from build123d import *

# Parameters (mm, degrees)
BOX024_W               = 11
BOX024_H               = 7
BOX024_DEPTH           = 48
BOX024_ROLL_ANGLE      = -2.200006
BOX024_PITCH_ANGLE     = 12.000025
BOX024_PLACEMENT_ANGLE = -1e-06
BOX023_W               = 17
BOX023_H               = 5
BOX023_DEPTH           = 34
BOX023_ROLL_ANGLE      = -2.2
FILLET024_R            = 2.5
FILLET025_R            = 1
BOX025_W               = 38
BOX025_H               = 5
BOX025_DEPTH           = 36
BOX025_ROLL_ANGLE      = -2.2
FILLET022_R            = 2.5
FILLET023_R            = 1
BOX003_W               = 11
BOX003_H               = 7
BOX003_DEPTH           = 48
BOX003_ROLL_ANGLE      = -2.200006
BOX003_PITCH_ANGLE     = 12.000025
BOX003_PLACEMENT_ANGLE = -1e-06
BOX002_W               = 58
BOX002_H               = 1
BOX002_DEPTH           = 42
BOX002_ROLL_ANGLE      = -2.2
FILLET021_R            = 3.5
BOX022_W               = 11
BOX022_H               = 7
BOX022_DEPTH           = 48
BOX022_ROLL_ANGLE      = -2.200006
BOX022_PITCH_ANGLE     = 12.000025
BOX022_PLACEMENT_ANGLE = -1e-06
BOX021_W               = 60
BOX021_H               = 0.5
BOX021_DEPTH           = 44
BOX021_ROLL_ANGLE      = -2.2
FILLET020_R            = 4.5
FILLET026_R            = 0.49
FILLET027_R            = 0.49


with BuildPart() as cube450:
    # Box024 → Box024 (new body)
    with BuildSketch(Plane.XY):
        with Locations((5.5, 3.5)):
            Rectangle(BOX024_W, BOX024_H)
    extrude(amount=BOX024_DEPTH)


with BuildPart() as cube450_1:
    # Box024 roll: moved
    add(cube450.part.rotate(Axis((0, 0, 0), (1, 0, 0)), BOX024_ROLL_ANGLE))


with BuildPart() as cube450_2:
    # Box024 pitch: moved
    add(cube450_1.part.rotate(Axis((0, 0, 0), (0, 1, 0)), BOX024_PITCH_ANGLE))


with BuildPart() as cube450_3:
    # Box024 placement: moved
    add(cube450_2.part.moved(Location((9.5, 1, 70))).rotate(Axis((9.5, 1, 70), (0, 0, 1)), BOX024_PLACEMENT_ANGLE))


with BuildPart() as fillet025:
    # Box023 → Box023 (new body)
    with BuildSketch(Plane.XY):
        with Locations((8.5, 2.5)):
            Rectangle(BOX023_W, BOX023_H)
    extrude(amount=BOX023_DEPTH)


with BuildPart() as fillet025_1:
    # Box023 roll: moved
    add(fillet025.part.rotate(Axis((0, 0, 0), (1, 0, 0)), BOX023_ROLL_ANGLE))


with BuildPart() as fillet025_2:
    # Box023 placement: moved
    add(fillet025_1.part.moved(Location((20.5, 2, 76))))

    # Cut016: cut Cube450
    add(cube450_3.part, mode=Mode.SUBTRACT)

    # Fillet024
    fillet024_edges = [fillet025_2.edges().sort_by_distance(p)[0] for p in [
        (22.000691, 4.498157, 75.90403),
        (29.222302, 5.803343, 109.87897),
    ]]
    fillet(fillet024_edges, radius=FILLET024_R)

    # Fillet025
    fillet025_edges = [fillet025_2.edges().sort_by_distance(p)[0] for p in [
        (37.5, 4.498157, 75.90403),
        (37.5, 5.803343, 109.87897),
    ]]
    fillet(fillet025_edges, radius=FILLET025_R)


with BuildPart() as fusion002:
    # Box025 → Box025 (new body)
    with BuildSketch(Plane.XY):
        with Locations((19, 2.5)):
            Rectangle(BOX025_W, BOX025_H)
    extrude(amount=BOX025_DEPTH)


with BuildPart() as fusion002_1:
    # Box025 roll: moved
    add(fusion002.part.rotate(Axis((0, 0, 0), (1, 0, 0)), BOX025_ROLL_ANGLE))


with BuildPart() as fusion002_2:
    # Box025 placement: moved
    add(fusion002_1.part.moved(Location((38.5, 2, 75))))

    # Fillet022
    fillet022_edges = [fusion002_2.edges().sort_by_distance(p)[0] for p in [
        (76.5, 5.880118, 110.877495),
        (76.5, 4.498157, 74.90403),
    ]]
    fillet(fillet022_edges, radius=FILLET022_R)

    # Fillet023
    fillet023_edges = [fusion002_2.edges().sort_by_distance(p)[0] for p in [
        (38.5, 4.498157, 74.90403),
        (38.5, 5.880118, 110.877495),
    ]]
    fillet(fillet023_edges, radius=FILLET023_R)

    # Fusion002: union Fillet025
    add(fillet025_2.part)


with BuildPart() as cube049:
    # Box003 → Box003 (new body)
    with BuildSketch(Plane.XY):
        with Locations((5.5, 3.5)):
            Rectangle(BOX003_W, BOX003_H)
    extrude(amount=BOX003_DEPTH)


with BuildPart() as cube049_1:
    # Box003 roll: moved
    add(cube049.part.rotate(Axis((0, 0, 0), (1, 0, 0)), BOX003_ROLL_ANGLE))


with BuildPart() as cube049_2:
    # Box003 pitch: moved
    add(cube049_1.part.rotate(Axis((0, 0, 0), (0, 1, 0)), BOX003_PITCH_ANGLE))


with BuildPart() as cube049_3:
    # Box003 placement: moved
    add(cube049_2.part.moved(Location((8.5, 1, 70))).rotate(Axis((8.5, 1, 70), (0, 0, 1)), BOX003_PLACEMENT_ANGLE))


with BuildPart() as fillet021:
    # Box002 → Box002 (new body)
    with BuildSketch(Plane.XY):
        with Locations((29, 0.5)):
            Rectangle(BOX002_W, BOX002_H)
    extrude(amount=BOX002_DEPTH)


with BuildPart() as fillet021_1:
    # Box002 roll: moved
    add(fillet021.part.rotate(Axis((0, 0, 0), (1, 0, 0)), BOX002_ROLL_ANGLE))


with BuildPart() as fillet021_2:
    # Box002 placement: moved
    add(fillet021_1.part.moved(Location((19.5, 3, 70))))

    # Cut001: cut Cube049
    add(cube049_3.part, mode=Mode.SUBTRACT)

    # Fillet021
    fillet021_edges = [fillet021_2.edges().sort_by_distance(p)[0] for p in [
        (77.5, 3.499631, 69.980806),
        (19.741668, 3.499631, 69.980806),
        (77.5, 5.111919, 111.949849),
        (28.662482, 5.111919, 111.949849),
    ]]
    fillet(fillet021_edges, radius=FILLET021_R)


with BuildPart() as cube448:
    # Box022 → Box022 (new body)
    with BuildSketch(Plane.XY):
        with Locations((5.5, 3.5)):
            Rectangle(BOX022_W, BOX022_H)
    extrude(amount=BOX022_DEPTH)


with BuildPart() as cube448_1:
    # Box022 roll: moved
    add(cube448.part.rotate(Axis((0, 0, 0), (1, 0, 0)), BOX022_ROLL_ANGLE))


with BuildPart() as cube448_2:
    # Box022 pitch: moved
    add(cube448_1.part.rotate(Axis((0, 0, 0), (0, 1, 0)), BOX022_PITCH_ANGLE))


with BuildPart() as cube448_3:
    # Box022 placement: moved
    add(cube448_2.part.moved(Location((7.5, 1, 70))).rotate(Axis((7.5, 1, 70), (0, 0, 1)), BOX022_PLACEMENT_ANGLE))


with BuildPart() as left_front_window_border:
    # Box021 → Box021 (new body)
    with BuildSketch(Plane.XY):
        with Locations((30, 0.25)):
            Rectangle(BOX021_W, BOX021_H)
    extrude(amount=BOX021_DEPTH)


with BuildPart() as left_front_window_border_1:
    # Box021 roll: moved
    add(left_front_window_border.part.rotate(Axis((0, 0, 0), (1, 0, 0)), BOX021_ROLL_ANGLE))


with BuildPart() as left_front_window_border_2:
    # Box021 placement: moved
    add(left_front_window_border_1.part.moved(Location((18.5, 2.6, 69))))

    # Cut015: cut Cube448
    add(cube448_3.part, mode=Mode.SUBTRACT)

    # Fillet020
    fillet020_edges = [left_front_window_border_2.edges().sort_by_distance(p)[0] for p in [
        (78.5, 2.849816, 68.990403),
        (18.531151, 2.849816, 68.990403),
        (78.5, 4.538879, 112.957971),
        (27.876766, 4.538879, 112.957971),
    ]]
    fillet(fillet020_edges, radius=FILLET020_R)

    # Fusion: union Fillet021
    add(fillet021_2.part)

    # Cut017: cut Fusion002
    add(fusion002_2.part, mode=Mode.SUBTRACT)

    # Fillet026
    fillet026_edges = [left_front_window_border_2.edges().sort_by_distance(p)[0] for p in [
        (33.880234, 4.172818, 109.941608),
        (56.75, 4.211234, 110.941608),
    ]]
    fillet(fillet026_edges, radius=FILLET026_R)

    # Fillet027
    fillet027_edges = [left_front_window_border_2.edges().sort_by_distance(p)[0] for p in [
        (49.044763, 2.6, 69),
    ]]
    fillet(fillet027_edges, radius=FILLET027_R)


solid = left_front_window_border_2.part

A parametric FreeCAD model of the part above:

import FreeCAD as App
import Part
import Sketcher
Q = App.Units.Quantity


def edges_at(feature, points):
    """Names of the edges that pass closest to the given points."""
    edges = feature.Shape.Edges
    near = lambda p: min(range(len(edges)), key=lambda i: edges[i].distToShape(Part.Vertex(*p))[0])
    return sorted({f"Edge{near(p) + 1}" for p in points})

doc = App.newDocument("Part")
params = doc.addObject("Spreadsheet::Sheet", "Params")
for row, (alias, value) in enumerate([
    ("sketch1_width", "11 mm"),
    ("sketch1_height", "7 mm"),
    ("pad1_length", "48 mm"),
    ("sketch2_width", "17 mm"),
    ("sketch2_height", "5 mm"),
    ("pad2_length", "34 mm"),
    ("fillet_radius", "2.5 mm"),
    ("fillet2_radius", "1 mm"),
    ("sketch3_width", "38 mm"),
    ("sketch3_height", "5 mm"),
    ("pad3_length", "36 mm"),
    ("fillet3_radius", "2.5 mm"),
    ("fillet4_radius", "1 mm"),
    ("sketch4_width", "11 mm"),
    ("sketch4_height", "7 mm"),
    ("pad4_length", "48 mm"),
    ("sketch5_width", "58 mm"),
    ("sketch5_height", "1 mm"),
    ("pad5_length", "42 mm"),
    ("fillet5_radius", "3.5 mm"),
    ("sketch6_width", "11 mm"),
    ("sketch6_height", "7 mm"),
    ("pad6_length", "48 mm"),
    ("sketch7_width", "60 mm"),
    ("sketch7_height", "0.5 mm"),
    ("pad7_length", "44 mm"),
    ("fillet6_radius", "4.5 mm"),
    ("fillet7_radius", "0.49 mm"),
    ("fillet8_radius", "0.49 mm"),
], start=1):
    params.set(f"A{row}", alias)
    params.set(f"B{row}", "=" + value)
    params.setAlias(f"B{row}", alias)

body = doc.addObject("PartDesign::Body", "Body")

# Sketch on XY plane
sketch1 = body.newObject("Sketcher::SketchObject", "Sketch")
sketch1.AttachmentSupport = (doc.getObject("XY_Plane"), [""])
sketch1.MapMode = "FlatFace"
sketch1.addGeometry([
    Part.LineSegment(App.Vector(0, 7, 0), App.Vector(0, 0, 0)),
    Part.LineSegment(App.Vector(0, 0, 0), App.Vector(11, 0, 0)),
    Part.LineSegment(App.Vector(11, 0, 0), App.Vector(11, 7, 0)),
    Part.LineSegment(App.Vector(11, 7, 0), App.Vector(0, 7, 0)),
], False)
sketch1.addConstraint([
    Sketcher.Constraint("Coincident", 0, 2, 1, 1),
    Sketcher.Constraint("Coincident", 1, 2, 2, 1),
    Sketcher.Constraint("Coincident", 2, 2, 3, 1),
    Sketcher.Constraint("Coincident", 3, 2, 0, 1),
    Sketcher.Constraint("Vertical", 0),
    Sketcher.Constraint("Horizontal", 1),
    Sketcher.Constraint("Vertical", 2),
    Sketcher.Constraint("Horizontal", 3),
    Sketcher.Constraint("Coincident", 0, 2, -1, 1),
    Sketcher.Constraint("DistanceX", 1, 1, 1, 2, Q("11 mm")),
    Sketcher.Constraint("DistanceY", 0, 2, 0, 1, Q("7 mm")),
])
sketch1.setExpression("Constraints[9]", "Params.sketch1_width")
sketch1.setExpression("Constraints[10]", "Params.sketch1_height")
pad1 = body.newObject("PartDesign::Pad", "Pad")
pad1.Profile = sketch1
pad1.setExpression("Length", "Params.pad1_length")
body2 = doc.addObject("PartDesign::Body", "Body001")
doc.recompute()

body.Placement = App.Placement(App.Vector(0, 0, 0), App.Rotation(App.Vector(1, 0, 0), 357.799994))
boolean = body2.newObject("PartDesign::Boolean", "Boolean")
boolean.Type = "Fuse"
boolean.addObjects([body])
body3 = doc.addObject("PartDesign::Body", "Body002")
doc.recompute()

body2.Placement = App.Placement(App.Vector(0, 0, 0), App.Rotation(App.Vector(0, 1, 0), 12.000025))
boolean2 = body3.newObject("PartDesign::Boolean", "Boolean001")
boolean2.Type = "Fuse"
boolean2.addObjects([body2])
body4 = doc.addObject("PartDesign::Body", "Body003")
doc.recompute()

body3.Placement = App.Placement(App.Vector(9.5, 1, 70), App.Rotation(App.Vector(0, 0, 1), 0))
boolean3 = body4.newObject("PartDesign::Boolean", "Boolean002")
boolean3.Type = "Fuse"
boolean3.addObjects([body3])
body5 = doc.addObject("PartDesign::Body", "Body004")

# Sketch on XY plane
sketch2 = body5.newObject("Sketcher::SketchObject", "Sketch001")
sketch2.AttachmentSupport = (doc.getObject("XY_Plane004"), [""])
sketch2.MapMode = "FlatFace"
sketch2.addGeometry([
    Part.LineSegment(App.Vector(0, 5, 0), App.Vector(0, 0, 0)),
    Part.LineSegment(App.Vector(0, 0, 0), App.Vector(17, 0, 0)),
    Part.LineSegment(App.Vector(17, 0, 0), App.Vector(17, 5, 0)),
    Part.LineSegment(App.Vector(17, 5, 0), App.Vector(0, 5, 0)),
], False)
sketch2.addConstraint([
    Sketcher.Constraint("Coincident", 0, 2, 1, 1),
    Sketcher.Constraint("Coincident", 1, 2, 2, 1),
    Sketcher.Constraint("Coincident", 2, 2, 3, 1),
    Sketcher.Constraint("Coincident", 3, 2, 0, 1),
    Sketcher.Constraint("Vertical", 0),
    Sketcher.Constraint("Horizontal", 1),
    Sketcher.Constraint("Vertical", 2),
    Sketcher.Constraint("Horizontal", 3),
    Sketcher.Constraint("Coincident", 0, 2, -1, 1),
    Sketcher.Constraint("DistanceX", 1, 1, 1, 2, Q("17 mm")),
    Sketcher.Constraint("DistanceY", 0, 2, 0, 1, Q("5 mm")),
])
sketch2.setExpression("Constraints[9]", "Params.sketch2_width")
sketch2.setExpression("Constraints[10]", "Params.sketch2_height")
pad2 = body5.newObject("PartDesign::Pad", "Pad001")
pad2.Profile = sketch2
pad2.setExpression("Length", "Params.pad2_length")
body6 = doc.addObject("PartDesign::Body", "Body005")
doc.recompute()

body5.Placement = App.Placement(App.Vector(0, 0, 0), App.Rotation(App.Vector(1, 0, 0), 357.8))
boolean4 = body6.newObject("PartDesign::Boolean", "Boolean003")
boolean4.Type = "Fuse"
boolean4.addObjects([body5])
body7 = doc.addObject("PartDesign::Body", "Body006")
doc.recompute()

body6.Placement = App.Placement(App.Vector(20.5, 2, 76), App.Rotation(App.Vector(0, 0, 1), 0))
boolean5 = body7.newObject("PartDesign::Boolean", "Boolean004")
boolean5.Type = "Fuse"
boolean5.addObjects([body6])
doc.recompute()

boolean6 = body7.newObject("PartDesign::Boolean", "Boolean005")
boolean6.Type = "Cut"
boolean6.addObjects([body4])
doc.recompute()

fillet = body7.newObject("PartDesign::Fillet", "Fillet")
fillet.Base = (boolean6, edges_at(boolean6, [(22.001, 4.498, 75.904), (29.222, 5.803, 109.879)]))
fillet.setExpression("Radius", "Params.fillet_radius")
doc.recompute()

fillet2 = body7.newObject("PartDesign::Fillet", "Fillet001")
fillet2.Base = (fillet, edges_at(fillet, [(37.5, 4.498, 75.904), (37.5, 5.803, 109.879)]))
fillet2.setExpression("Radius", "Params.fillet2_radius")
body8 = doc.addObject("PartDesign::Body", "Body007")

# Sketch on XY plane
sketch3 = body8.newObject("Sketcher::SketchObject", "Sketch002")
sketch3.AttachmentSupport = (doc.getObject("XY_Plane007"), [""])
sketch3.MapMode = "FlatFace"
sketch3.addGeometry([
    Part.LineSegment(App.Vector(0, 5, 0), App.Vector(0, 0, 0)),
    Part.LineSegment(App.Vector(0, 0, 0), App.Vector(38, 0, 0)),
    Part.LineSegment(App.Vector(38, 0, 0), App.Vector(38, 5, 0)),
    Part.LineSegment(App.Vector(38, 5, 0), App.Vector(0, 5, 0)),
], False)
sketch3.addConstraint([
    Sketcher.Constraint("Coincident", 0, 2, 1, 1),
    Sketcher.Constraint("Coincident", 1, 2, 2, 1),
    Sketcher.Constraint("Coincident", 2, 2, 3, 1),
    Sketcher.Constraint("Coincident", 3, 2, 0, 1),
    Sketcher.Constraint("Vertical", 0),
    Sketcher.Constraint("Horizontal", 1),
    Sketcher.Constraint("Vertical", 2),
    Sketcher.Constraint("Horizontal", 3),
    Sketcher.Constraint("Coincident", 0, 2, -1, 1),
    Sketcher.Constraint("DistanceX", 1, 1, 1, 2, Q("38 mm")),
    Sketcher.Constraint("DistanceY", 0, 2, 0, 1, Q("5 mm")),
])
sketch3.setExpression("Constraints[9]", "Params.sketch3_width")
sketch3.setExpression("Constraints[10]", "Params.sketch3_height")
pad3 = body8.newObject("PartDesign::Pad", "Pad002")
pad3.Profile = sketch3
pad3.setExpression("Length", "Params.pad3_length")
body9 = doc.addObject("PartDesign::Body", "Body008")
doc.recompute()

body8.Placement = App.Placement(App.Vector(0, 0, 0), App.Rotation(App.Vector(1, 0, 0), 357.8))
boolean7 = body9.newObject("PartDesign::Boolean", "Boolean006")
boolean7.Type = "Fuse"
boolean7.addObjects([body8])
body10 = doc.addObject("PartDesign::Body", "Body009")
body10.AllowCompound = True
doc.recompute()

body9.Placement = App.Placement(App.Vector(38.5, 2, 75), App.Rotation(App.Vector(0, 0, 1), 0))
boolean8 = body10.newObject("PartDesign::Boolean", "Boolean007")
boolean8.Type = "Fuse"
boolean8.addObjects([body9])
doc.recompute()

fillet3 = body10.newObject("PartDesign::Fillet", "Fillet002")
fillet3.Base = (boolean8, edges_at(boolean8, [(76.5, 5.88, 110.877), (76.5, 4.498, 74.904)]))
fillet3.setExpression("Radius", "Params.fillet3_radius")
doc.recompute()

fillet4 = body10.newObject("PartDesign::Fillet", "Fillet003")
fillet4.Base = (fillet3, edges_at(fillet3, [(38.5, 4.498, 74.904), (38.5, 5.88, 110.877)]))
fillet4.setExpression("Radius", "Params.fillet4_radius")
doc.recompute()

boolean9 = body10.newObject("PartDesign::Boolean", "Boolean008")
boolean9.Type = "Fuse"
boolean9.addObjects([body7])
body11 = doc.addObject("PartDesign::Body", "Body010")

# Sketch on XY plane
sketch4 = body11.newObject("Sketcher::SketchObject", "Sketch003")
sketch4.AttachmentSupport = (doc.getObject("XY_Plane010"), [""])
sketch4.MapMode = "FlatFace"
sketch4.addGeometry([
    Part.LineSegment(App.Vector(0, 7, 0), App.Vector(0, 0, 0)),
    Part.LineSegment(App.Vector(0, 0, 0), App.Vector(11, 0, 0)),
    Part.LineSegment(App.Vector(11, 0, 0), App.Vector(11, 7, 0)),
    Part.LineSegment(App.Vector(11, 7, 0), App.Vector(0, 7, 0)),
], False)
sketch4.addConstraint([
    Sketcher.Constraint("Coincident", 0, 2, 1, 1),
    Sketcher.Constraint("Coincident", 1, 2, 2, 1),
    Sketcher.Constraint("Coincident", 2, 2, 3, 1),
    Sketcher.Constraint("Coincident", 3, 2, 0, 1),
    Sketcher.Constraint("Vertical", 0),
    Sketcher.Constraint("Horizontal", 1),
    Sketcher.Constraint("Vertical", 2),
    Sketcher.Constraint("Horizontal", 3),
    Sketcher.Constraint("Coincident", 0, 2, -1, 1),
    Sketcher.Constraint("DistanceX", 1, 1, 1, 2, Q("11 mm")),
    Sketcher.Constraint("DistanceY", 0, 2, 0, 1, Q("7 mm")),
])
sketch4.setExpression("Constraints[9]", "Params.sketch4_width")
sketch4.setExpression("Constraints[10]", "Params.sketch4_height")
pad4 = body11.newObject("PartDesign::Pad", "Pad003")
pad4.Profile = sketch4
pad4.setExpression("Length", "Params.pad4_length")
body12 = doc.addObject("PartDesign::Body", "Body011")
doc.recompute()

body11.Placement = App.Placement(App.Vector(0, 0, 0), App.Rotation(App.Vector(1, 0, 0), 357.799994))
boolean10 = body12.newObject("PartDesign::Boolean", "Boolean009")
boolean10.Type = "Fuse"
boolean10.addObjects([body11])
body13 = doc.addObject("PartDesign::Body", "Body012")
doc.recompute()

body12.Placement = App.Placement(App.Vector(0, 0, 0), App.Rotation(App.Vector(0, 1, 0), 12.000025))
boolean11 = body13.newObject("PartDesign::Boolean", "Boolean010")
boolean11.Type = "Fuse"
boolean11.addObjects([body12])
body14 = doc.addObject("PartDesign::Body", "Body013")
doc.recompute()

body13.Placement = App.Placement(App.Vector(8.5, 1, 70), App.Rotation(App.Vector(0, 0, 1), 0))
boolean12 = body14.newObject("PartDesign::Boolean", "Boolean011")
boolean12.Type = "Fuse"
boolean12.addObjects([body13])
body15 = doc.addObject("PartDesign::Body", "Body014")

# Sketch on XY plane
sketch5 = body15.newObject("Sketcher::SketchObject", "Sketch004")
sketch5.AttachmentSupport = (doc.getObject("XY_Plane014"), [""])
sketch5.MapMode = "FlatFace"
sketch5.addGeometry([
    Part.LineSegment(App.Vector(0, 1, 0), App.Vector(0, 0, 0)),
    Part.LineSegment(App.Vector(0, 0, 0), App.Vector(58, 0, 0)),
    Part.LineSegment(App.Vector(58, 0, 0), App.Vector(58, 1, 0)),
    Part.LineSegment(App.Vector(58, 1, 0), App.Vector(0, 1, 0)),
], False)
sketch5.addConstraint([
    Sketcher.Constraint("Coincident", 0, 2, 1, 1),
    Sketcher.Constraint("Coincident", 1, 2, 2, 1),
    Sketcher.Constraint("Coincident", 2, 2, 3, 1),
    Sketcher.Constraint("Coincident", 3, 2, 0, 1),
    Sketcher.Constraint("Vertical", 0),
    Sketcher.Constraint("Horizontal", 1),
    Sketcher.Constraint("Vertical", 2),
    Sketcher.Constraint("Horizontal", 3),
    Sketcher.Constraint("Coincident", 0, 2, -1, 1),
    Sketcher.Constraint("DistanceX", 1, 1, 1, 2, Q("58 mm")),
    Sketcher.Constraint("DistanceY", 0, 2, 0, 1, Q("1 mm")),
])
sketch5.setExpression("Constraints[9]", "Params.sketch5_width")
sketch5.setExpression("Constraints[10]", "Params.sketch5_height")
pad5 = body15.newObject("PartDesign::Pad", "Pad004")
pad5.Profile = sketch5
pad5.setExpression("Length", "Params.pad5_length")
body16 = doc.addObject("PartDesign::Body", "Body015")
doc.recompute()

body15.Placement = App.Placement(App.Vector(0, 0, 0), App.Rotation(App.Vector(1, 0, 0), 357.8))
boolean13 = body16.newObject("PartDesign::Boolean", "Boolean012")
boolean13.Type = "Fuse"
boolean13.addObjects([body15])
body17 = doc.addObject("PartDesign::Body", "Body016")
doc.recompute()

body16.Placement = App.Placement(App.Vector(19.5, 3, 70), App.Rotation(App.Vector(0, 0, 1), 0))
boolean14 = body17.newObject("PartDesign::Boolean", "Boolean013")
boolean14.Type = "Fuse"
boolean14.addObjects([body16])
doc.recompute()

boolean15 = body17.newObject("PartDesign::Boolean", "Boolean014")
boolean15.Type = "Cut"
boolean15.addObjects([body14])
doc.recompute()

fillet5 = body17.newObject("PartDesign::Fillet", "Fillet004")
fillet5.Base = (boolean15, edges_at(boolean15, [
    (77.5, 3.5, 69.981),
    (19.742, 3.5, 69.981),
    (77.5, 5.112, 111.95),
    (28.662, 5.112, 111.95),
]))
fillet5.setExpression("Radius", "Params.fillet5_radius")
body18 = doc.addObject("PartDesign::Body", "Body017")

# Sketch on XY plane
sketch6 = body18.newObject("Sketcher::SketchObject", "Sketch005")
sketch6.AttachmentSupport = (doc.getObject("XY_Plane017"), [""])
sketch6.MapMode = "FlatFace"
sketch6.addGeometry([
    Part.LineSegment(App.Vector(0, 7, 0), App.Vector(0, 0, 0)),
    Part.LineSegment(App.Vector(0, 0, 0), App.Vector(11, 0, 0)),
    Part.LineSegment(App.Vector(11, 0, 0), App.Vector(11, 7, 0)),
    Part.LineSegment(App.Vector(11, 7, 0), App.Vector(0, 7, 0)),
], False)
sketch6.addConstraint([
    Sketcher.Constraint("Coincident", 0, 2, 1, 1),
    Sketcher.Constraint("Coincident", 1, 2, 2, 1),
    Sketcher.Constraint("Coincident", 2, 2, 3, 1),
    Sketcher.Constraint("Coincident", 3, 2, 0, 1),
    Sketcher.Constraint("Vertical", 0),
    Sketcher.Constraint("Horizontal", 1),
    Sketcher.Constraint("Vertical", 2),
    Sketcher.Constraint("Horizontal", 3),
    Sketcher.Constraint("Coincident", 0, 2, -1, 1),
    Sketcher.Constraint("DistanceX", 1, 1, 1, 2, Q("11 mm")),
    Sketcher.Constraint("DistanceY", 0, 2, 0, 1, Q("7 mm")),
])
sketch6.setExpression("Constraints[9]", "Params.sketch6_width")
sketch6.setExpression("Constraints[10]", "Params.sketch6_height")
pad6 = body18.newObject("PartDesign::Pad", "Pad005")
pad6.Profile = sketch6
pad6.setExpression("Length", "Params.pad6_length")
body19 = doc.addObject("PartDesign::Body", "Body018")
doc.recompute()

body18.Placement = App.Placement(App.Vector(0, 0, 0), App.Rotation(App.Vector(1, 0, 0), 357.799994))
boolean16 = body19.newObject("PartDesign::Boolean", "Boolean015")
boolean16.Type = "Fuse"
boolean16.addObjects([body18])
body20 = doc.addObject("PartDesign::Body", "Body019")
doc.recompute()

body19.Placement = App.Placement(App.Vector(0, 0, 0), App.Rotation(App.Vector(0, 1, 0), 12.000025))
boolean17 = body20.newObject("PartDesign::Boolean", "Boolean016")
boolean17.Type = "Fuse"
boolean17.addObjects([body19])
body21 = doc.addObject("PartDesign::Body", "Body020")
doc.recompute()

body20.Placement = App.Placement(App.Vector(7.5, 1, 70), App.Rotation(App.Vector(0, 0, 1), 0))
boolean18 = body21.newObject("PartDesign::Boolean", "Boolean017")
boolean18.Type = "Fuse"
boolean18.addObjects([body20])
body22 = doc.addObject("PartDesign::Body", "Body021")

# Sketch on XY plane
sketch7 = body22.newObject("Sketcher::SketchObject", "Sketch006")
sketch7.AttachmentSupport = (doc.getObject("XY_Plane021"), [""])
sketch7.MapMode = "FlatFace"
sketch7.addGeometry([
    Part.LineSegment(App.Vector(0, 0.5, 0), App.Vector(0, 0, 0)),
    Part.LineSegment(App.Vector(0, 0, 0), App.Vector(60, 0, 0)),
    Part.LineSegment(App.Vector(60, 0, 0), App.Vector(60, 0.5, 0)),
    Part.LineSegment(App.Vector(60, 0.5, 0), App.Vector(0, 0.5, 0)),
], False)
sketch7.addConstraint([
    Sketcher.Constraint("Coincident", 0, 2, 1, 1),
    Sketcher.Constraint("Coincident", 1, 2, 2, 1),
    Sketcher.Constraint("Coincident", 2, 2, 3, 1),
    Sketcher.Constraint("Coincident", 3, 2, 0, 1),
    Sketcher.Constraint("Vertical", 0),
    Sketcher.Constraint("Horizontal", 1),
    Sketcher.Constraint("Vertical", 2),
    Sketcher.Constraint("Horizontal", 3),
    Sketcher.Constraint("Coincident", 0, 2, -1, 1),
    Sketcher.Constraint("DistanceX", 1, 1, 1, 2, Q("60 mm")),
    Sketcher.Constraint("DistanceY", 0, 2, 0, 1, Q("0.5 mm")),
])
sketch7.setExpression("Constraints[9]", "Params.sketch7_width")
sketch7.setExpression("Constraints[10]", "Params.sketch7_height")
pad7 = body22.newObject("PartDesign::Pad", "Pad006")
pad7.Profile = sketch7
pad7.setExpression("Length", "Params.pad7_length")
body23 = doc.addObject("PartDesign::Body", "Body022")
doc.recompute()

body22.Placement = App.Placement(App.Vector(0, 0, 0), App.Rotation(App.Vector(1, 0, 0), 357.8))
boolean19 = body23.newObject("PartDesign::Boolean", "Boolean018")
boolean19.Type = "Fuse"
boolean19.addObjects([body22])
body24 = doc.addObject("PartDesign::Body", "Body023")
doc.recompute()

body23.Placement = App.Placement(App.Vector(18.5, 2.6, 69), App.Rotation(App.Vector(0, 0, 1), 0))
boolean20 = body24.newObject("PartDesign::Boolean", "Boolean019")
boolean20.Type = "Fuse"
boolean20.addObjects([body23])
doc.recompute()

boolean21 = body24.newObject("PartDesign::Boolean", "Boolean020")
boolean21.Type = "Cut"
boolean21.addObjects([body21])
doc.recompute()

fillet6 = body24.newObject("PartDesign::Fillet", "Fillet005")
fillet6.Base = (boolean21, edges_at(boolean21, [
    (78.5, 2.85, 68.99),
    (18.531, 2.85, 68.99),
    (78.5, 4.539, 112.958),
    (27.877, 4.539, 112.958),
]))
fillet6.setExpression("Radius", "Params.fillet6_radius")
doc.recompute()

boolean22 = body24.newObject("PartDesign::Boolean", "Boolean021")
boolean22.Type = "Fuse"
boolean22.addObjects([body17])
doc.recompute()

boolean23 = body24.newObject("PartDesign::Boolean", "Boolean022")
boolean23.Type = "Cut"
boolean23.addObjects([body10])
doc.recompute()

fillet7 = body24.newObject("PartDesign::Fillet", "Fillet006")
fillet7.Base = (boolean23, edges_at(boolean23, [(33.88, 4.173, 109.942), (56.75, 4.211, 110.942)]))
fillet7.setExpression("Radius", "Params.fillet7_radius")
doc.recompute()

fillet8 = body24.newObject("PartDesign::Fillet", "Fillet007")
fillet8.Base = (fillet7, edges_at(fillet7, [(49.045, 2.6, 69)]))
fillet8.setExpression("Radius", "Params.fillet8_radius")

doc.recompute()
